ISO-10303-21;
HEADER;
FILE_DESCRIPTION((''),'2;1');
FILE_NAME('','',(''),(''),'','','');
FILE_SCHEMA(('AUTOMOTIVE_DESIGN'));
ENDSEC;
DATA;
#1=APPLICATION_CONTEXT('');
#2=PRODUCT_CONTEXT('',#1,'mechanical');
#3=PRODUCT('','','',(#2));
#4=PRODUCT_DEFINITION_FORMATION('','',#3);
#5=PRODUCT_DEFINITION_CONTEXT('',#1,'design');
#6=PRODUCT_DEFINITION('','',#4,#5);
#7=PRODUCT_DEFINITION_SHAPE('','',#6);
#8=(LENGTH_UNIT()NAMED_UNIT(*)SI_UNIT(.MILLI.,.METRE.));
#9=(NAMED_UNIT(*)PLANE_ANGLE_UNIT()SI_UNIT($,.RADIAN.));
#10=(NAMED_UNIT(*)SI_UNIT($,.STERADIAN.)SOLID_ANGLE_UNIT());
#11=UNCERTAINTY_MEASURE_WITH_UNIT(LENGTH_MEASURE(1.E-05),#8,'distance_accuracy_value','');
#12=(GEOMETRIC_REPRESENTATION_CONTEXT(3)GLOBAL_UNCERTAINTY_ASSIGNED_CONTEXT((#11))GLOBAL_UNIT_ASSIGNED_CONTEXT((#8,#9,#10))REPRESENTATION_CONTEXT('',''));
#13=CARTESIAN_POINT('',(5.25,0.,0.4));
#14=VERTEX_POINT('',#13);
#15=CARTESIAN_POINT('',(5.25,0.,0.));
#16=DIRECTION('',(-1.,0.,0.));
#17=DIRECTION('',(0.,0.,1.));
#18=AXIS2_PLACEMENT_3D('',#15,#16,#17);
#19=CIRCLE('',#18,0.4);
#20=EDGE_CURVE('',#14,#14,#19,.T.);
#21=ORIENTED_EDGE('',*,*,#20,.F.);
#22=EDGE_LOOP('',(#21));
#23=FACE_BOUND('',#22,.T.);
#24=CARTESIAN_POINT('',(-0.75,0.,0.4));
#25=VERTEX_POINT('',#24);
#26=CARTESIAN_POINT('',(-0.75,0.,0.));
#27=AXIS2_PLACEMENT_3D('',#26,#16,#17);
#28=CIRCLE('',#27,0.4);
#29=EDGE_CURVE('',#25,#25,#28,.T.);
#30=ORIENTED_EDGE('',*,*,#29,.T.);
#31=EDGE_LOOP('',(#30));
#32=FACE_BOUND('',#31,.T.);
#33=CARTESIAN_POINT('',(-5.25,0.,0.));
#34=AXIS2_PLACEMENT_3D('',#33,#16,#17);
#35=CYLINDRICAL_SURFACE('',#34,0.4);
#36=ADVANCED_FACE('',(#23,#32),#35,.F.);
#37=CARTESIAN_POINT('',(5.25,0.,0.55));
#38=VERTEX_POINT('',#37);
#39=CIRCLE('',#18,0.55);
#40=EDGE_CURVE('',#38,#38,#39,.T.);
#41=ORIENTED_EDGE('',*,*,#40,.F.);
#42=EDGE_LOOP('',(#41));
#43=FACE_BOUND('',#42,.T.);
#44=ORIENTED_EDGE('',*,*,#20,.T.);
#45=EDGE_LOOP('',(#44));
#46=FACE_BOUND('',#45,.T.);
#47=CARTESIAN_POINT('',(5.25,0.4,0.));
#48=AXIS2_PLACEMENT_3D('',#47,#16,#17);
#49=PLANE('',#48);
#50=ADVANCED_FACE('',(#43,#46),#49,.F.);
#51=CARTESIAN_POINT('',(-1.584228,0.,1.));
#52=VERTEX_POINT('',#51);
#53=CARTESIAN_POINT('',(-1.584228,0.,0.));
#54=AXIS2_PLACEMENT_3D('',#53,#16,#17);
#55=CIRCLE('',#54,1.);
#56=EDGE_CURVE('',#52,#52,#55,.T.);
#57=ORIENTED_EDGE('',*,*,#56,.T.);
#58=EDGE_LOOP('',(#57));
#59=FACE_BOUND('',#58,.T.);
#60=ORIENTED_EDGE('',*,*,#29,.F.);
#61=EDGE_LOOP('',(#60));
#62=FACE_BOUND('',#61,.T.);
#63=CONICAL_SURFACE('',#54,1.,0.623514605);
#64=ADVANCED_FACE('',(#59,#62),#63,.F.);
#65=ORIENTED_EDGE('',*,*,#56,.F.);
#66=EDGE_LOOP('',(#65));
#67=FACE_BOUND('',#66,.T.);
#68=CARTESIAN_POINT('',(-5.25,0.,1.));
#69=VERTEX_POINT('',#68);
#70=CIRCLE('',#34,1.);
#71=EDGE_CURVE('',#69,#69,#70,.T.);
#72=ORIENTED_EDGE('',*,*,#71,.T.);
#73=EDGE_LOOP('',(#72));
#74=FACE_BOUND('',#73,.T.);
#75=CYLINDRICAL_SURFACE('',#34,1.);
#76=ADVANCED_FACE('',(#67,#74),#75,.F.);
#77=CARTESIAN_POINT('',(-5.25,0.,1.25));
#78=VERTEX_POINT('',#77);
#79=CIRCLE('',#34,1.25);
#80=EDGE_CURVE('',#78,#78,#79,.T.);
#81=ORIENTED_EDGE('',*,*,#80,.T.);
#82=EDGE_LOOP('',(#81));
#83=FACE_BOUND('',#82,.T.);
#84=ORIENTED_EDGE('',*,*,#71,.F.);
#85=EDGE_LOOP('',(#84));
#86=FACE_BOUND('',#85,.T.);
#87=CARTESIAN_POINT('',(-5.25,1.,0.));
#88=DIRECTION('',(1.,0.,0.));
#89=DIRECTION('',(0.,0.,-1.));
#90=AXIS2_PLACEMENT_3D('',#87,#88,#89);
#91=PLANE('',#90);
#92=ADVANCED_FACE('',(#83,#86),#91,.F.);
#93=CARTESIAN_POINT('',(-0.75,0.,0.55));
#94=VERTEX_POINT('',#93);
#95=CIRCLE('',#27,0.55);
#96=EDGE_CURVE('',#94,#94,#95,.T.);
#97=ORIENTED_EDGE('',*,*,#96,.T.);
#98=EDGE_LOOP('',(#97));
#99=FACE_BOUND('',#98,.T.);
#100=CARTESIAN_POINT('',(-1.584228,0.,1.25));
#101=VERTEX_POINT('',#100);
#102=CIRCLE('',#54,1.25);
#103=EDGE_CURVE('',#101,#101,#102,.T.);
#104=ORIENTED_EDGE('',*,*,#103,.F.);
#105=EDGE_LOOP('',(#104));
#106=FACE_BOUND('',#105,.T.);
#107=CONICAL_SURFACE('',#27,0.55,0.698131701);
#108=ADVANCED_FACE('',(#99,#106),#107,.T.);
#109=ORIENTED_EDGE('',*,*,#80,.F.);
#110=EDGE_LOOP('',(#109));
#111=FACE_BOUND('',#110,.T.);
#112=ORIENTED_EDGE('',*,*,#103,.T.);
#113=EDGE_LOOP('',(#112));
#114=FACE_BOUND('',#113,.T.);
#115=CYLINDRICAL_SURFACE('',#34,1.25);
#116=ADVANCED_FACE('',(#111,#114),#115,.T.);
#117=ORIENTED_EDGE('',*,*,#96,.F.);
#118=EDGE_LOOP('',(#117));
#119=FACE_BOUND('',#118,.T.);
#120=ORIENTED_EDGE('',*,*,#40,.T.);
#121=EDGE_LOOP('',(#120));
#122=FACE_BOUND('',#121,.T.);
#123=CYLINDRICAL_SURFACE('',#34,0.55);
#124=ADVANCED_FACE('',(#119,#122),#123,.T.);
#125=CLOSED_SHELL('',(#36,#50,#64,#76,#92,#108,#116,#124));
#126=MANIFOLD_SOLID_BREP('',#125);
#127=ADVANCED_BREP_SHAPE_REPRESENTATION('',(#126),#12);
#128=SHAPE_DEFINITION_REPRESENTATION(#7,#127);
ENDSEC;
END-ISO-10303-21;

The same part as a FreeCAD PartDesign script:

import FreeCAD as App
import Part
import Sketcher
from FreeCAD import Vector
Q = App.Units.Quantity


def add_polygon(sketch, points):
    """Adds a closed chain of lines whose ends are joined by coincident constraints."""
    first, n = sketch.GeometryCount, len(points)
    for a, b in zip(points, points[1:] + points[:1]):
        sketch.addGeometry(Part.LineSegment(App.Vector(*a, 0), App.Vector(*b, 0)), False)
    for i in range(n):
        sketch.addConstraint(Sketcher.Constraint("Coincident", first + i, 2, first + (i + 1) % n, 1))

doc = App.newDocument("Part")
body = doc.addObject("PartDesign::Body", "Body")

# Sketch on XY plane
sketch1 = body.newObject("Sketcher::SketchObject", "Sketch")
sketch1.AttachmentSupport = (doc.getObject("XY_Plane"), [""])
sketch1.MapMode = "FlatFace"
add_polygon(sketch1, [(-0.75, 0.4), (5.25, 0.4), (5.25, 0.55), (-0.75, 0.55), (-1.58, 1.25), (-5.25, 1.25), (-5.25, 1), (-1.58, 1)])  # lines 0-7
sketch1.addConstraint([
    Sketcher.Constraint("Horizontal", 0),
    Sketcher.Constraint("Vertical", 1),
    Sketcher.Constraint("Horizontal", 2),
    Sketcher.Constraint("Horizontal", 4),
    Sketcher.Constraint("Vertical", 5),
    Sketcher.Constraint("Horizontal", 6),
    Sketcher.Constraint("Vertical", 3, 2, 6, 2),
    Sketcher.Constraint("Vertical", 2, 2, 7, 2),
    Sketcher.Constraint("DistanceX", 0, 1, 0, 2, 6.0),
    Sketcher.Constraint("Angle", 3, Q("140 deg")),
    Sketcher.Constraint("DistanceY", -1, 1, 5, 2, 1.0),
    Sketcher.Constraint("DistanceY", 1, 1, 1, 2, 0.15),
    Sketcher.Constraint("DistanceY", 5, 2, 5, 1, 0.25),
    Sketcher.Constraint("DistanceY", -1, 1, 0, 2, 0.4),
    Sketcher.Constraint("DistanceX", 4, 2, 2, 2, 4.5),
    Sketcher.Constraint("DistanceX", -1, 1, 0, 2, 5.25),
])
revolution = body.newObject("PartDesign::Revolution", "Revolution")
revolution.Profile = sketch1
revolution.ReferenceAxis = (sketch1, ["H_Axis"])
revolution.Angle = 360

doc.recompute()
